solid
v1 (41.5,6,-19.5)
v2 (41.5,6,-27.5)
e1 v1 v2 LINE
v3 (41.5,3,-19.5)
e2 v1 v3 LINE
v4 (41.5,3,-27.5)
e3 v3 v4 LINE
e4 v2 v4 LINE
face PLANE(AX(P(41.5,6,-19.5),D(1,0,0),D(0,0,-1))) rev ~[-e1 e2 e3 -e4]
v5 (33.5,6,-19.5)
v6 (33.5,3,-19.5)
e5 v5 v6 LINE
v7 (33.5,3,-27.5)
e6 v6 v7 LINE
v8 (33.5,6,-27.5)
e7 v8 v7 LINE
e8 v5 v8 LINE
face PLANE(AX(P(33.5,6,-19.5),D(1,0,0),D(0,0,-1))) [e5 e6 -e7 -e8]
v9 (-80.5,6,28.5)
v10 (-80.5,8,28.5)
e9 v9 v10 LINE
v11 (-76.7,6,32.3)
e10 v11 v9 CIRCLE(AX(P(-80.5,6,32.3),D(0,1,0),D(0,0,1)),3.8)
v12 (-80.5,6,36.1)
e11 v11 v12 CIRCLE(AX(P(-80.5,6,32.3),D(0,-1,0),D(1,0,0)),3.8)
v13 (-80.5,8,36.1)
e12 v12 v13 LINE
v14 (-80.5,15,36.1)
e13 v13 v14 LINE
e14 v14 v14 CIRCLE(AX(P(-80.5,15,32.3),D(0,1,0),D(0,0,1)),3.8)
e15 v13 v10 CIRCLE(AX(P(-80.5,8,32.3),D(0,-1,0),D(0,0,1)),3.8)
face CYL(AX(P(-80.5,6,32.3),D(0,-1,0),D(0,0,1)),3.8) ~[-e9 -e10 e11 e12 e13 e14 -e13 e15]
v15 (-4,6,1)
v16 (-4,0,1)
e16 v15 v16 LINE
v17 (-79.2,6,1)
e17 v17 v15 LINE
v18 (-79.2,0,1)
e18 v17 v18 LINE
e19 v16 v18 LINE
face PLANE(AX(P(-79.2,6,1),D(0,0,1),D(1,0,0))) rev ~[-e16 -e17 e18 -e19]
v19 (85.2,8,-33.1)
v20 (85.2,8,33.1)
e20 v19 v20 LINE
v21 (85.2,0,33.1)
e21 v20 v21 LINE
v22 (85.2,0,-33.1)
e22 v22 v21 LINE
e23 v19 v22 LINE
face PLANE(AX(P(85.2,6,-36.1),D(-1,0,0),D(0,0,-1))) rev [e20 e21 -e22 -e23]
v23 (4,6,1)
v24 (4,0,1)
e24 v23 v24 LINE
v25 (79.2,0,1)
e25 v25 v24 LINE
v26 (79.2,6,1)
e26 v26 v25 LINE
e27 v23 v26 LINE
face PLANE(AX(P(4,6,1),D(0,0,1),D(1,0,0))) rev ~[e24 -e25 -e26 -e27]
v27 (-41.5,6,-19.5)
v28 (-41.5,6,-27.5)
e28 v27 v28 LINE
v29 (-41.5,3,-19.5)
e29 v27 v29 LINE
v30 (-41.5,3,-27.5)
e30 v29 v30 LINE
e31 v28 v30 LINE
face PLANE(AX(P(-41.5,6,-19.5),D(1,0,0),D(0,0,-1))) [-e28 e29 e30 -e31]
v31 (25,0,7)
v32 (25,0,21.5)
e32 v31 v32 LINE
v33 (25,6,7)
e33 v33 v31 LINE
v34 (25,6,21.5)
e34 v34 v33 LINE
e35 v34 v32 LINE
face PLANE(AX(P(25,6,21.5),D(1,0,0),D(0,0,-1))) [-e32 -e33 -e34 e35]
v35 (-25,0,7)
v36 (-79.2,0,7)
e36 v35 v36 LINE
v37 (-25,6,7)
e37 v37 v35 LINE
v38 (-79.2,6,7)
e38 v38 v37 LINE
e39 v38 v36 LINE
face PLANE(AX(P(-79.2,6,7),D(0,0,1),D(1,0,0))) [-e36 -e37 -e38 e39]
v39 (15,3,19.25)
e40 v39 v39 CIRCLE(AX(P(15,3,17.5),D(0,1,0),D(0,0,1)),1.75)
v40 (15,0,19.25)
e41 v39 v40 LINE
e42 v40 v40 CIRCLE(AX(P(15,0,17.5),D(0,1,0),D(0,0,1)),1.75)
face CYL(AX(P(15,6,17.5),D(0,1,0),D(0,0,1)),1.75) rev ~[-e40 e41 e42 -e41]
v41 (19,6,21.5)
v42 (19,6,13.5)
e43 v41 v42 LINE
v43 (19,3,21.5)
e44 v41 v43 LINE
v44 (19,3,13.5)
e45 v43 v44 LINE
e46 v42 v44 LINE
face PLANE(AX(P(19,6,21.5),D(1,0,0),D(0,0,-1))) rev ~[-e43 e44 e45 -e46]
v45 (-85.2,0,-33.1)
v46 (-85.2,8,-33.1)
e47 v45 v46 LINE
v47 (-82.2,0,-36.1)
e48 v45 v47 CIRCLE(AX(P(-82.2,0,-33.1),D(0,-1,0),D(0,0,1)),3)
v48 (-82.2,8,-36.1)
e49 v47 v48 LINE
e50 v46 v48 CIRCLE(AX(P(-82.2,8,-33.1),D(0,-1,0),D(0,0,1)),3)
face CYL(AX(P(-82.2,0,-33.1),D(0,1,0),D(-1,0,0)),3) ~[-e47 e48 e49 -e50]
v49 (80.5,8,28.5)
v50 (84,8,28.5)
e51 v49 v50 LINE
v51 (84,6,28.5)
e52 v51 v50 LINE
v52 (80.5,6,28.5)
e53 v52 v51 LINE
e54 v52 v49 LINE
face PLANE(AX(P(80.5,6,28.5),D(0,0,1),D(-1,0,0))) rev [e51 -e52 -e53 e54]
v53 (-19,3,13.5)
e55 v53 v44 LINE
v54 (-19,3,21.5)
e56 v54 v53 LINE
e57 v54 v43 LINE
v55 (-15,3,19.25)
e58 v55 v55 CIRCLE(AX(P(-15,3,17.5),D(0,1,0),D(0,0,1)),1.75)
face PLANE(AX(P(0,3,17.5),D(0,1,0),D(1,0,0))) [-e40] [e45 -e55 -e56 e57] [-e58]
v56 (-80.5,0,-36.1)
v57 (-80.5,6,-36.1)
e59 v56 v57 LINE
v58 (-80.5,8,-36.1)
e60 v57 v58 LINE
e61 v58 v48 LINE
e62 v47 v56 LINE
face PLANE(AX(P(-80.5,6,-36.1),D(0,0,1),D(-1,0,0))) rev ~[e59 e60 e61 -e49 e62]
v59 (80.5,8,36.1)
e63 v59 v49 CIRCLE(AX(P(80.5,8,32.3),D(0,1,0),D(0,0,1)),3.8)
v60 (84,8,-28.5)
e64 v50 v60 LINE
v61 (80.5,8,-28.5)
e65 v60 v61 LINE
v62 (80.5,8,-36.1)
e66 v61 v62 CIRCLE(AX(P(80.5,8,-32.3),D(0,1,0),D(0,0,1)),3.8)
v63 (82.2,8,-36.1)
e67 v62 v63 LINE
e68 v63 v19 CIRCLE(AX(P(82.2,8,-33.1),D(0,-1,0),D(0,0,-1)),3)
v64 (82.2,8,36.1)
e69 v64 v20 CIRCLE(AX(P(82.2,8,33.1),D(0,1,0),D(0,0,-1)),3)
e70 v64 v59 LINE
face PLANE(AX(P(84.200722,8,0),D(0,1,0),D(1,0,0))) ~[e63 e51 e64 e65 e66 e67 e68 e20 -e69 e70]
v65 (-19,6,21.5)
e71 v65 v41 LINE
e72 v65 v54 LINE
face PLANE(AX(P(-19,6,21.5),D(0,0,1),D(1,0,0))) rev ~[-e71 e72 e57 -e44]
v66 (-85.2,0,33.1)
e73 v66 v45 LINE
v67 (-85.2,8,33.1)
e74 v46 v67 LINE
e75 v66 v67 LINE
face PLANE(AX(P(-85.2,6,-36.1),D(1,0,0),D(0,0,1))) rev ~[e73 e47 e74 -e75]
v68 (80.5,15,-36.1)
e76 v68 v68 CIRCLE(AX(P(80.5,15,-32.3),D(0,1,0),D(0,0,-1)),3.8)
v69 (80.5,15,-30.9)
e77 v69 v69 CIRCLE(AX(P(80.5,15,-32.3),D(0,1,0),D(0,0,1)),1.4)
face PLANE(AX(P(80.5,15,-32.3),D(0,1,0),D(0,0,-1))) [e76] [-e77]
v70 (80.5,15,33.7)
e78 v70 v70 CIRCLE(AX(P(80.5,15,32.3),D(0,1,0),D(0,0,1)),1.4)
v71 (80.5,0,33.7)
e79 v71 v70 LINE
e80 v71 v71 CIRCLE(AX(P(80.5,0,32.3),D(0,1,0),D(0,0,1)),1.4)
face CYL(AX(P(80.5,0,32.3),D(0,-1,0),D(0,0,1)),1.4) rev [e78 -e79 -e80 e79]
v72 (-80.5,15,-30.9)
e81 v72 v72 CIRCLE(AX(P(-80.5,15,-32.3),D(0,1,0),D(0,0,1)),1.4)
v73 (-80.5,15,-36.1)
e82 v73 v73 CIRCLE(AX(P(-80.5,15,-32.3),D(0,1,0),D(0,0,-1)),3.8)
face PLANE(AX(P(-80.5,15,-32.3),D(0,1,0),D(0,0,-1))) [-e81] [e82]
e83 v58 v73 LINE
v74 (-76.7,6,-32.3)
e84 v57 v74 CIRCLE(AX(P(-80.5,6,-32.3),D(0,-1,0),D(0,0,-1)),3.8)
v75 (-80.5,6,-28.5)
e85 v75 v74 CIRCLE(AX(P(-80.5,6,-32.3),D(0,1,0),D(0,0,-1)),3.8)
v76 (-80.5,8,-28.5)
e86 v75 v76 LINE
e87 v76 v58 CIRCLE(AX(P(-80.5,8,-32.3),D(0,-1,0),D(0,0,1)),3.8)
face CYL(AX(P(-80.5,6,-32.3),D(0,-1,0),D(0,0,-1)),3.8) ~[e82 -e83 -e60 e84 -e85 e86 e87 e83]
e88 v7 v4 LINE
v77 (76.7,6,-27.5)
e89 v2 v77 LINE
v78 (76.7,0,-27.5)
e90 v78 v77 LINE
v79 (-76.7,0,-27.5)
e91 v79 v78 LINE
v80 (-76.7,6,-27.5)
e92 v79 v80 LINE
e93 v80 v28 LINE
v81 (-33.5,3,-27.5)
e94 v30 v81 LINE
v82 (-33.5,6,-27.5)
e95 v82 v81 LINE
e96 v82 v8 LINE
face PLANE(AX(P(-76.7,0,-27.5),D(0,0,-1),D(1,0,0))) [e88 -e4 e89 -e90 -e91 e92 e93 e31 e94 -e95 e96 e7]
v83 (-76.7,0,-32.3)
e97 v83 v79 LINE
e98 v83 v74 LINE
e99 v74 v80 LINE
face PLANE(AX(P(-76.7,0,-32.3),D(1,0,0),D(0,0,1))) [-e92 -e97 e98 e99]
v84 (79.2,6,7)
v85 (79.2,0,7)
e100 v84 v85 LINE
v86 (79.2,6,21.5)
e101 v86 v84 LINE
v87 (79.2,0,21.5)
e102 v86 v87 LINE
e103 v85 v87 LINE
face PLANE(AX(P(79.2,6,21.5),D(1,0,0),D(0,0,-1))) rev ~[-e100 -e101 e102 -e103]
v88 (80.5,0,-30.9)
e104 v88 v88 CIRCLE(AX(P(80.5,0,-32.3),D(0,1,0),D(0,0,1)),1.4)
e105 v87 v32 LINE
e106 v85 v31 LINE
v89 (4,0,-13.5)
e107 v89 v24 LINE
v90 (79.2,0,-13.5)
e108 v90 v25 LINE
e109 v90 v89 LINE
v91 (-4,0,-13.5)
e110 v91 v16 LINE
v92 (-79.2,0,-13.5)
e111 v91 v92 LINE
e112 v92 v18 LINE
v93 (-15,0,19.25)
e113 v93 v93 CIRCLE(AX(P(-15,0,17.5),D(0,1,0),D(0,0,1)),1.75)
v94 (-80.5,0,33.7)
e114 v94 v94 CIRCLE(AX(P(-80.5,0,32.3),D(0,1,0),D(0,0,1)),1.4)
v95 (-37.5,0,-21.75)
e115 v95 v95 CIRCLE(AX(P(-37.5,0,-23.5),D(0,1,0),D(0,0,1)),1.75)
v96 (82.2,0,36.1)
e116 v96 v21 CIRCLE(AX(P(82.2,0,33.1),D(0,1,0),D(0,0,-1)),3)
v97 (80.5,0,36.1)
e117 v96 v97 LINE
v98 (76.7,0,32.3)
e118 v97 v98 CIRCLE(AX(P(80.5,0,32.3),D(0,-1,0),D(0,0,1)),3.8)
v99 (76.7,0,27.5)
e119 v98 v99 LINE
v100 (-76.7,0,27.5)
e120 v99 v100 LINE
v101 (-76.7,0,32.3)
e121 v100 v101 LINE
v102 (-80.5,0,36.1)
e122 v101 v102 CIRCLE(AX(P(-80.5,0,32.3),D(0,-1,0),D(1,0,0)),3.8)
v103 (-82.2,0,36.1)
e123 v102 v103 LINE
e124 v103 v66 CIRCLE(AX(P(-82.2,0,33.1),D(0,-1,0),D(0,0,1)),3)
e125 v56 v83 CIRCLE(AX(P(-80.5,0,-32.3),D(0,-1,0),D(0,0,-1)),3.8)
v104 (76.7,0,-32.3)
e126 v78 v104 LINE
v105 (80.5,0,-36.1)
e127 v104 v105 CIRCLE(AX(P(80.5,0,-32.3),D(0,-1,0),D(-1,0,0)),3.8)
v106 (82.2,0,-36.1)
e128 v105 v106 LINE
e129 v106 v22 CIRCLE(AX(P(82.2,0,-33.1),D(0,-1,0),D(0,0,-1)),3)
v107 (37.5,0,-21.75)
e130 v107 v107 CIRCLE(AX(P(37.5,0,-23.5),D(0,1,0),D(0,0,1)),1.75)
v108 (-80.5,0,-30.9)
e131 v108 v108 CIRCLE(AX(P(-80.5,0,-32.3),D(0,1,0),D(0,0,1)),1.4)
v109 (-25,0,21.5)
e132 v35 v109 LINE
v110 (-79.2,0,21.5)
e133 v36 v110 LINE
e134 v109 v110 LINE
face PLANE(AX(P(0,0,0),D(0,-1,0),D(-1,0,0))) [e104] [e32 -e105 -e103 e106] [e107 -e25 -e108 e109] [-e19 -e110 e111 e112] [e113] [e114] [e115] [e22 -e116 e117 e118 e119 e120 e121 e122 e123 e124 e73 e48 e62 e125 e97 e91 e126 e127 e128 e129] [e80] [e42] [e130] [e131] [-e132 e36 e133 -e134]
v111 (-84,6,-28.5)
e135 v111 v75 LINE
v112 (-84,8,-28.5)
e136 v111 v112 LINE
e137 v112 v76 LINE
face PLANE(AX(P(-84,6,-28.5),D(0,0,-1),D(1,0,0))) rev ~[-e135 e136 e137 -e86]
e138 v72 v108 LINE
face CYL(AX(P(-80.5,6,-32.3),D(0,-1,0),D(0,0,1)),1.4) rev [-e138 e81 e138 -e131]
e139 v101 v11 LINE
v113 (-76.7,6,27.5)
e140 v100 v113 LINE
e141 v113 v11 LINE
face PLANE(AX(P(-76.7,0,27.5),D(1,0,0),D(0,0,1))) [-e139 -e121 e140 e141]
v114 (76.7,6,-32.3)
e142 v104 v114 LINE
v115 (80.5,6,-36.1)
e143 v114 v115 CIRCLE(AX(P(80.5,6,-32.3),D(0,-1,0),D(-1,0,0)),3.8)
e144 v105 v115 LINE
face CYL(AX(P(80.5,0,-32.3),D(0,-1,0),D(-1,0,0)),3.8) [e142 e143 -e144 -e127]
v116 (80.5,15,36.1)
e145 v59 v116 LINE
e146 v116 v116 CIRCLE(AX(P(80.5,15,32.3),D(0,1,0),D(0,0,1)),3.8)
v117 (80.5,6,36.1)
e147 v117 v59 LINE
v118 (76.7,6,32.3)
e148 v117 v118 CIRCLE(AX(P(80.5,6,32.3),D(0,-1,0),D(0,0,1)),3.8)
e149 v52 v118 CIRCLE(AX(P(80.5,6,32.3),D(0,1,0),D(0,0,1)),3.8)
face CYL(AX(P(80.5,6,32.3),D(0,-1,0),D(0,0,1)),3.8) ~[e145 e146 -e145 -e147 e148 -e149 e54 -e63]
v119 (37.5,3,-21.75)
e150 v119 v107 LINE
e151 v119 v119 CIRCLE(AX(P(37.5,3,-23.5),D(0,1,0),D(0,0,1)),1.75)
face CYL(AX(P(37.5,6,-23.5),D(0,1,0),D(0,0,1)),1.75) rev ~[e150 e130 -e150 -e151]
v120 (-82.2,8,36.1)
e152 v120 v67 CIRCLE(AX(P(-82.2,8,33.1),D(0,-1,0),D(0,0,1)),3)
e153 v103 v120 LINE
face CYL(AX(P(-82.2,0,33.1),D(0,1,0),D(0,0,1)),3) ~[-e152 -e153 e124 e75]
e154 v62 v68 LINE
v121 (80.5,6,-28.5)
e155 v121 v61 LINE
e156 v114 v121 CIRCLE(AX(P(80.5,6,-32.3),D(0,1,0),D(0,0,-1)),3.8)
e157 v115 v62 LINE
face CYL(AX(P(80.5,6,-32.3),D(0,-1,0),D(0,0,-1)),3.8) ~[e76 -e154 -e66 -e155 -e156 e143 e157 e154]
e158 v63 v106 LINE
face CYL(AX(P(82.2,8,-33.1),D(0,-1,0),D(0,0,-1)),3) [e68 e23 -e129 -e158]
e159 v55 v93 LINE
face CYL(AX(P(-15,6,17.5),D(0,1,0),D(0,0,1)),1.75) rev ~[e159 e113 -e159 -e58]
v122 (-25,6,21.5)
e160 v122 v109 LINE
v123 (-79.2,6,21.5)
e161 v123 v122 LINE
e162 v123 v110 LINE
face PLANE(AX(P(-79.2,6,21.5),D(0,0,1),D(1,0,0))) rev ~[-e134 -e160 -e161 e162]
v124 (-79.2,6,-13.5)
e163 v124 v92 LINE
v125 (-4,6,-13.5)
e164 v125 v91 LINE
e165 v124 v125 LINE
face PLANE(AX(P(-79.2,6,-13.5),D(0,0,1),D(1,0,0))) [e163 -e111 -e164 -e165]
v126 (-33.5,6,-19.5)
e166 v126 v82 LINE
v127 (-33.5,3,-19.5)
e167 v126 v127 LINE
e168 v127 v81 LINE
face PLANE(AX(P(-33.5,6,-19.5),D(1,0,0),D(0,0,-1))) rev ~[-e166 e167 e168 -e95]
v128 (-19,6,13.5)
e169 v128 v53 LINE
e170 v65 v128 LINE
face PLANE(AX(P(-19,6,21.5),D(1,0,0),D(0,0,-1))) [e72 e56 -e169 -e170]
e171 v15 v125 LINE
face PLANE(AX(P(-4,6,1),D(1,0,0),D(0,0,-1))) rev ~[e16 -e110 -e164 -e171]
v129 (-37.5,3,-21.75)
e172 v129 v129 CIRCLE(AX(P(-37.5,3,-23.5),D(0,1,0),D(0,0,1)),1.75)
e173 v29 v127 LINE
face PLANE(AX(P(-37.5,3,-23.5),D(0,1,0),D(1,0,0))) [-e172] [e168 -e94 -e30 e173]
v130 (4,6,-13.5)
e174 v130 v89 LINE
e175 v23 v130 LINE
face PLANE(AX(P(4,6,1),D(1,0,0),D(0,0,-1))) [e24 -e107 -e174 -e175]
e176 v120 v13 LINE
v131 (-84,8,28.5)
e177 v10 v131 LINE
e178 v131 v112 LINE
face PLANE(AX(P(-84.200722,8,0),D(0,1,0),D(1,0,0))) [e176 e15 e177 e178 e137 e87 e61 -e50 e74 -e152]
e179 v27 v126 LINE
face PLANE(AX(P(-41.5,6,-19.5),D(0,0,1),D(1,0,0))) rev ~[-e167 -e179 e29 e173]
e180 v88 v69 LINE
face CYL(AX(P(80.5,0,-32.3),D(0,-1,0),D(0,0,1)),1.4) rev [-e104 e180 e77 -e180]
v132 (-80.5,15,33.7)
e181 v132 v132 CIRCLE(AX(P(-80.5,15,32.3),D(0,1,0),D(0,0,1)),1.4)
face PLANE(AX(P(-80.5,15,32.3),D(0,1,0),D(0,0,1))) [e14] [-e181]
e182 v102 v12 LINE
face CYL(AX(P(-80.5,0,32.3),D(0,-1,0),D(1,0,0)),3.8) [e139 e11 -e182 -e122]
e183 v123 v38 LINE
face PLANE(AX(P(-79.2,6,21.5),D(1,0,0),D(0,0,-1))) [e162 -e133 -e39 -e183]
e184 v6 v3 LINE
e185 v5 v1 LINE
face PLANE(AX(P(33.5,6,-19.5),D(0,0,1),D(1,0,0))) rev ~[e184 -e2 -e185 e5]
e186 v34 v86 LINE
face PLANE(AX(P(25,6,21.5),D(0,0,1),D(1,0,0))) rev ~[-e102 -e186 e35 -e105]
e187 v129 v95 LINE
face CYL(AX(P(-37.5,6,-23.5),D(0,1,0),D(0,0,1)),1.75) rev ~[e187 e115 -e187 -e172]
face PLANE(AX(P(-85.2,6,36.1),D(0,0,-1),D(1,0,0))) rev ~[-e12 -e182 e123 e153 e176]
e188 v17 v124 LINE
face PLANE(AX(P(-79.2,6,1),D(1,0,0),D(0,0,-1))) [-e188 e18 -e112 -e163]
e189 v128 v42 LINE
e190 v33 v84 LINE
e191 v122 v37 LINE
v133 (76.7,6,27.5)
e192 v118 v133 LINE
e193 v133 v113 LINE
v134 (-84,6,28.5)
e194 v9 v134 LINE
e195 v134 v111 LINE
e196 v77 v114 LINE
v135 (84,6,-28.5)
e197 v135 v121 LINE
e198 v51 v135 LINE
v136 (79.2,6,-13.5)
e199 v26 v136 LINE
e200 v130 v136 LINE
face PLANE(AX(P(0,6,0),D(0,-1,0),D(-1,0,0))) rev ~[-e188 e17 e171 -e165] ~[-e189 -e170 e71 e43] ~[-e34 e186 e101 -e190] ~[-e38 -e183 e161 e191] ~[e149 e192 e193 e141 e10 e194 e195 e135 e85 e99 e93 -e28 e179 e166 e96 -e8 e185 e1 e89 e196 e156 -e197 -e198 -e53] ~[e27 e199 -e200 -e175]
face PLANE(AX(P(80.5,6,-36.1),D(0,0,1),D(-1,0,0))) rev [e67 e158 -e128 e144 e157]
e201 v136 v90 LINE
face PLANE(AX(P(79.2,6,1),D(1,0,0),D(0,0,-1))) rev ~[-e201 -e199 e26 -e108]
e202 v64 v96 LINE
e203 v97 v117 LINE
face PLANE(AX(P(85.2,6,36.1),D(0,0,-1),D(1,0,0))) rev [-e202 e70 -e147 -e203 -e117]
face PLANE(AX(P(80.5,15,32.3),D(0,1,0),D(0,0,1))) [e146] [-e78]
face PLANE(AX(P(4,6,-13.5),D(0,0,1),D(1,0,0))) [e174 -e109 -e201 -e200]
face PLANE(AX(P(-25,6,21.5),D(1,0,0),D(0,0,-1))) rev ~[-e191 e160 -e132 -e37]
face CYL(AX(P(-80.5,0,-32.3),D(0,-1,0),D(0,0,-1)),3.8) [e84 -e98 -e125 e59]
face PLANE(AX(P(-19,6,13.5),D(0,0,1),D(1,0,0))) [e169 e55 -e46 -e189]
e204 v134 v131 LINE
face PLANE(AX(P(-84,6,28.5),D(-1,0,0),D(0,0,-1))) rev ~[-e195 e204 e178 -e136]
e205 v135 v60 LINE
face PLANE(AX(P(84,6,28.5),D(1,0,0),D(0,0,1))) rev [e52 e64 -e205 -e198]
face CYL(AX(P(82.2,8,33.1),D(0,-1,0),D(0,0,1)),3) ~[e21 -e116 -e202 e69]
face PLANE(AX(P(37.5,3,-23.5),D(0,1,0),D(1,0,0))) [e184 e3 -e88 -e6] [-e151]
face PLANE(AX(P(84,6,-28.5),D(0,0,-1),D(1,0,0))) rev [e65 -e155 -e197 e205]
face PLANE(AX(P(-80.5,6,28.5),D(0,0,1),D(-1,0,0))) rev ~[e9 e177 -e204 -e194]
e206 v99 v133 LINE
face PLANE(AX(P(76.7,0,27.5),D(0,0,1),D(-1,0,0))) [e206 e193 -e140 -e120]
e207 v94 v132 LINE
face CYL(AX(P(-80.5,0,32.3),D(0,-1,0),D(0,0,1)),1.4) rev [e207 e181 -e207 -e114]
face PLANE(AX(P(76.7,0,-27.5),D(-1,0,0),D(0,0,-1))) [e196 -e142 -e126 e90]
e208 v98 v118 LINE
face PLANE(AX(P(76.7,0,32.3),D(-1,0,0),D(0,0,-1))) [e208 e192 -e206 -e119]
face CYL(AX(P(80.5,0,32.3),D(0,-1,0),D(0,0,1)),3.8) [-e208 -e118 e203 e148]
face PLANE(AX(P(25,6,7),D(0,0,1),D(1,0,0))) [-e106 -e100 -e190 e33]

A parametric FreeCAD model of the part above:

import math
import FreeCAD as App
import Part
import Sketcher
from FreeCAD import Vector


def edges_at(feature, points):
    """Names of the edges that pass closest to the given points."""
    edges = feature.Shape.Edges
    near = lambda p: min(range(len(edges)), key=lambda i: edges[i].distToShape(Part.Vertex(*p))[0])
    return sorted({f"Edge{near(p) + 1}" for p in points})

doc = App.newDocument("Part")
body = doc.addObject("PartDesign::Body", "Body")

# Sketch on XZ plane
sketch1 = doc.addObject("Sketcher::SketchObject", "Sketch")
body.addObject(sketch1)
sketch1.AttachmentSupport = (doc.XZ_Plane, [""])
sketch1.MapMode = "FlatFace"
sketch1.addGeometry(Part.LineSegment(Vector(-76.7, 32.3, 0), Vector(-76.7, 27.5, 0)), False)
sketch1.addGeometry(Part.LineSegment(Vector(-76.7, 27.5, 0), Vector(76.7, 27.5, 0)), False)
sketch1.addGeometry(Part.LineSegment(Vector(76.7, 27.5, 0), Vector(76.7, 32.3, 0)), False)
sketch1.addGeometry(Part.ArcOfCircle(Part.Circle(Vector(80.5, 32.3, 0), Vector(0, 0, 1), 3.8), math.radians(90), math.radians(180)), False)
sketch1.addGeometry(Part.LineSegment(Vector(80.5, 36.1, 0), Vector(85.2, 36.1, 0)), False)
sketch1.addGeometry(Part.LineSegment(Vector(85.2, 36.1, 0), Vector(85.2, -36.1, 0)), False)
sketch1.addGeometry(Part.LineSegment(Vector(85.2, -36.1, 0), Vector(80.5, -36.1, 0)), False)
sketch1.addGeometry(Part.ArcOfCircle(Part.Circle(Vector(80.5, -32.3, 0), Vector(0, 0, 1), 3.8), math.radians(180), math.radians(270)), False)
sketch1.addGeometry(Part.LineSegment(Vector(76.7, -32.3, 0), Vector(76.7, -27.5, 0)), False)
sketch1.addGeometry(Part.LineSegment(Vector(76.7, -27.5, 0), Vector(-76.7, -27.5, 0)), False)
sketch1.addGeometry(Part.LineSegment(Vector(-76.7, -27.5, 0), Vector(-76.7, -32.3, 0)), False)
sketch1.addGeometry(Part.ArcOfCircle(Part.Circle(Vector(-80.5, -32.3, 0), Vector(0, 0, 1), 3.8), math.radians(-90), math.radians(0)), False)
sketch1.addGeometry(Part.LineSegment(Vector(-80.5, -36.1, 0), Vector(-85.2, -36.1, 0)), False)
sketch1.addGeometry(Part.LineSegment(Vector(-85.2, -36.1, 0), Vector(-85.2, 36.1, 0)), False)
sketch1.addGeometry(Part.LineSegment(Vector(-85.2, 36.1, 0), Vector(-80.5, 36.1, 0)), False)
sketch1.addGeometry(Part.ArcOfCircle(Part.Circle(Vector(-80.5, 32.3, 0), Vector(0, 0, 1), 3.8), math.radians(0), math.radians(90)), False)
sketch1.addGeometry(Part.Circle(Vector(80.5, 32.3, 0), Vector(0, 0, 1), 1.4), False)
sketch1.addGeometry(Part.Circle(Vector(-80.5, 32.3, 0), Vector(0, 0, 1), 1.4), False)
sketch1.addGeometry(Part.Circle(Vector(80.5, -32.3, 0), Vector(0, 0, 1), 1.4), False)
sketch1.addGeometry(Part.Circle(Vector(-80.5, -32.3, 0), Vector(0, 0, 1), 1.4), False)
sketch1.addConstraint(Sketcher.Constraint("Coincident", 0, 2, 1, 1))
sketch1.addConstraint(Sketcher.Constraint("Coincident", 1, 2, 2, 1))
sketch1.addConstraint(Sketcher.Constraint("Tangent", 2, 2, 3, 2))
sketch1.addConstraint(Sketcher.Constraint("Tangent", 3, 1, 4, 1))
sketch1.addConstraint(Sketcher.Constraint("Coincident", 4, 2, 5, 1))
sketch1.addConstraint(Sketcher.Constraint("Coincident", 5, 2, 6, 1))
sketch1.addConstraint(Sketcher.Constraint("Tangent", 6, 2, 7, 2))
sketch1.addConstraint(Sketcher.Constraint("Tangent", 7, 1, 8, 1))
sketch1.addConstraint(Sketcher.Constraint("Coincident", 8, 2, 9, 1))
sketch1.addConstraint(Sketcher.Constraint("Coincident", 9, 2, 10, 1))
sketch1.addConstraint(Sketcher.Constraint("Tangent", 10, 2, 11, 2))
sketch1.addConstraint(Sketcher.Constraint("Tangent", 11, 1, 12, 1))
sketch1.addConstraint(Sketcher.Constraint("Coincident", 12, 2, 13, 1))
sketch1.addConstraint(Sketcher.Constraint("Coincident", 13, 2, 14, 1))
sketch1.addConstraint(Sketcher.Constraint("Tangent", 14, 2, 15, 2))
sketch1.addConstraint(Sketcher.Constraint("Tangent", 15, 1, 0, 1))
sketch1.addConstraint(Sketcher.Constraint("Vertical", 0))
sketch1.addConstraint(Sketcher.Constraint("Horizontal", 1))
sketch1.addConstraint(Sketcher.Constraint("Vertical", 2))
sketch1.addConstraint(Sketcher.Constraint("Horizontal", 4))
sketch1.addConstraint(Sketcher.Constraint("Vertical", 5))
sketch1.addConstraint(Sketcher.Constraint("Horizontal", 6))
sketch1.addConstraint(Sketcher.Constraint("Vertical", 8))
sketch1.addConstraint(Sketcher.Constraint("Horizontal", 9))
sketch1.addConstraint(Sketcher.Constraint("Vertical", 10))
sketch1.addConstraint(Sketcher.Constraint("Horizontal", 12))
sketch1.addConstraint(Sketcher.Constraint("Vertical", 13))
sketch1.addConstraint(Sketcher.Constraint("Horizontal", 14))
sketch1.addConstraint(Sketcher.Constraint("Coincident", 16, 3, 3, 3))
sketch1.addConstraint(Sketcher.Constraint("Coincident", 17, 3, 15, 3))
sketch1.addConstraint(Sketcher.Constraint("Coincident", 18, 3, 7, 3))
sketch1.addConstraint(Sketcher.Constraint("Coincident", 19, 3, 11, 3))
sketch1.addConstraint(Sketcher.Constraint("Equal", 3, 7))
sketch1.addConstraint(Sketcher.Constraint("Equal", 7, 11))
sketch1.addConstraint(Sketcher.Constraint("Equal", 11, 15))
sketch1.addConstraint(Sketcher.Constraint("Equal", 16, 17))
sketch1.addConstraint(Sketcher.Constraint("Equal", 17, 18))
sketch1.addConstraint(Sketcher.Constraint("Equal", 18, 19))
sketch1.addConstraint(Sketcher.Constraint("Symmetric", 3, 3, 11, 3, -1, 1))
sketch1.addConstraint(Sketcher.Constraint("Symmetric", 7, 3, 15, 3, -1, 1))
sketch1.addConstraint(Sketcher.Constraint("Symmetric", 7, 3, 11, 3, -2))
sketch1.addConstraint(Sketcher.Constraint("Equal", 6, 12))
sketch1.addConstraint(Sketcher.Constraint("Equal", 2, 8))
sketch1.addConstraint(Sketcher.Constraint("Diameter", 16, 2.8))
sketch1.addConstraint(Sketcher.Constraint("Radius", 3, 3.8))
sketch1.addConstraint(Sketcher.Constraint("DistanceX", 1, 1, 1, 2, 153.4))
sketch1.addConstraint(Sketcher.Constraint("DistanceX", 4, 1, 4, 2, 4.7))
sketch1.addConstraint(Sketcher.Constraint("DistanceY", 0, 2, 0, 1, 4.8))
sketch1.addConstraint(Sketcher.Constraint("DistanceY", 5, 2, 5, 1, 72.2))
pad1 = doc.addObject("PartDesign::Pad", "Pad")
body.addObject(pad1)
pad1.Profile = sketch1
pad1.Length = 6
pad1.Reversed = True

# Sketch on XZ plane
sketch2 = doc.addObject("Sketcher::SketchObject", "Sketch001")
body.addObject(sketch2)
sketch2.AttachmentSupport = (doc.XZ_Plane, [""])
sketch2.MapMode = "FlatFace"
sketch2.AttachmentOffset = App.Placement(Vector(0, 0, -6), App.Rotation())
sketch2.addGeometry(Part.Circle(Vector(-80.5, -32.3, 0), Vector(0, 0, 1), 3.8), False)
sketch2.addGeometry(Part.Circle(Vector(-80.5, -32.3, 0), Vector(0, 0, 1), 1.4), False)
sketch2.addGeometry(Part.Circle(Vector(-80.5, 32.3, 0), Vector(0, 0, 1), 3.8), False)
sketch2.addGeometry(Part.Circle(Vector(-80.5, 32.3, 0), Vector(0, 0, 1), 1.4), False)
sketch2.addGeometry(Part.Circle(Vector(80.5, 32.3, 0), Vector(0, 0, 1), 3.8), False)
sketch2.addGeometry(Part.Circle(Vector(80.5, 32.3, 0), Vector(0, 0, 1), 1.4), False)
sketch2.addGeometry(Part.Circle(Vector(80.5, -32.3, 0), Vector(0, 0, 1), 3.8), False)
sketch2.addGeometry(Part.Circle(Vector(80.5, -32.3, 0), Vector(0, 0, 1), 1.4), False)
sketch2.addConstraint(Sketcher.Constraint("Coincident", 1, 3, 0, 3))
sketch2.addConstraint(Sketcher.Constraint("Coincident", 3, 3, 2, 3))
sketch2.addConstraint(Sketcher.Constraint("Coincident", 5, 3, 4, 3))
sketch2.addConstraint(Sketcher.Constraint("Coincident", 7, 3, 6, 3))
sketch2.addConstraint(Sketcher.Constraint("Equal", 0, 2))
sketch2.addConstraint(Sketcher.Constraint("Equal", 1, 3))
sketch2.addConstraint(Sketcher.Constraint("Equal", 2, 4))
sketch2.addConstraint(Sketcher.Constraint("Equal", 3, 5))
sketch2.addConstraint(Sketcher.Constraint("Equal", 4, 6))
sketch2.addConstraint(Sketcher.Constraint("Equal", 5, 7))
sketch2.addConstraint(Sketcher.Constraint("Symmetric", 0, 3, 4, 3, -1, 1))
sketch2.addConstraint(Sketcher.Constraint("Symmetric", 2, 3, 6, 3, -1, 1))
sketch2.addConstraint(Sketcher.Constraint("Symmetric", 2, 3, 4, 3, -2))
sketch2.addConstraint(Sketcher.Constraint("Diameter", 0, 7.6))
sketch2.addConstraint(Sketcher.Constraint("Diameter", 1, 2.8))
sketch2.addConstraint(Sketcher.Constraint("DistanceX", 2, 3, 4, 3, 161.0))
sketch2.addConstraint(Sketcher.Constraint("DistanceY", 0, 3, -1, 1, 32.3))
pad2 = doc.addObject("PartDesign::Pad", "Pad001")
body.addObject(pad2)
pad2.Profile = sketch2
pad2.Length = 9
pad2.Reversed = True

# Sketch on XZ plane
sketch3 = doc.addObject("Sketcher::SketchObject", "Sketch002")
body.addObject(sketch3)
sketch3.AttachmentSupport = (doc.XZ_Plane, [""])
sketch3.MapMode = "FlatFace"
sketch3.AttachmentOffset = App.Placement(Vector(0, 0, -6), App.Rotation())
sketch3.addGeometry(Part.Circle(Vector(-37.5, -23.5, 0), Vector(0, 0, 1), 1.8), False)
sketch3.addGeometry(Part.Circle(Vector(-15, 17.5, 0), Vector(0, 0, 1), 1.8), False)
sketch3.addGeometry(Part.Circle(Vector(15, 17.5, 0), Vector(0, 0, 1), 1.8), False)
sketch3.addGeometry(Part.Circle(Vector(37.5, -23.5, 0), Vector(0, 0, 1), 1.8), False)
sketch3.addConstraint(Sketcher.Constraint("Equal", 0, 1))
sketch3.addConstraint(Sketcher.Constraint("Equal", 1, 2))
sketch3.addConstraint(Sketcher.Constraint("Equal", 2, 3))
sketch3.addConstraint(Sketcher.Constraint("Symmetric", 1, 3, 2, 3, -2))
sketch3.addConstraint(Sketcher.Constraint("Symmetric", 0, 3, 3, 3, -2))
sketch3.addConstraint(Sketcher.Constraint("Diameter", 0, 3.5))
sketch3.addConstraint(Sketcher.Constraint("DistanceX", 1, 3, -1, 1, 15.0))
sketch3.addConstraint(Sketcher.Constraint("DistanceY", 0, 3, 1, 3, 41.0))
sketch3.addConstraint(Sketcher.Constraint("DistanceX", 0, 3, 3, 3, 75.0))
sketch3.addConstraint(Sketcher.Constraint("DistanceY", 0, 3, -1, 1, 23.5))
pocket1 = doc.addObject("PartDesign::Pocket", "Pocket")
body.addObject(pocket1)
pocket1.Profile = sketch3
pocket1.Type = "ThroughAll"
pocket1.Reversed = True

# Sketch on XZ plane
sketch4 = doc.addObject("Sketcher::SketchObject", "Sketch003")
body.addObject(sketch4)
sketch4.AttachmentSupport = (doc.XZ_Plane, [""])
sketch4.MapMode = "FlatFace"
sketch4.AttachmentOffset = App.Placement(Vector(0, 0, -6), App.Rotation())
sketch4.addGeometry(Part.LineSegment(Vector(34, -28, 0), Vector(34, -20, 0)), False)
sketch4.addGeometry(Part.LineSegment(Vector(34, -20, 0), Vector(42, -20, 0)), False)
sketch4.addGeometry(Part.LineSegment(Vector(42, -20, 0), Vector(42, -28, 0)), False)
sketch4.addGeometry(Part.LineSegment(Vector(42, -28, 0), Vector(34, -28, 0)), False)
sketch4.addGeometry(Part.LineSegment(Vector(-42, -28, 0), Vector(-42, -20, 0)), False)
sketch4.addGeometry(Part.LineSegment(Vector(-42, -20, 0), Vector(-34, -20, 0)), False)
sketch4.addGeometry(Part.LineSegment(Vector(-34, -20, 0), Vector(-34, -28, 0)), False)
sketch4.addGeometry(Part.LineSegment(Vector(-34, -28, 0), Vector(-42, -28, 0)), False)
sketch4.addGeometry(Part.LineSegment(Vector(-19, 14, 0), Vector(-19, 22, 0)), False)
sketch4.addGeometry(Part.LineSegment(Vector(-19, 22, 0), Vector(19, 22, 0)), False)
sketch4.addGeometry(Part.LineSegment(Vector(19, 22, 0), Vector(19, 14, 0)), False)
sketch4.addGeometry(Part.LineSegment(Vector(19, 14, 0), Vector(-19, 14, 0)), False)
sketch4.addConstraint(Sketcher.Constraint("Coincident", 0, 2, 1, 1))
sketch4.addConstraint(Sketcher.Constraint("Coincident", 1, 2, 2, 1))
sketch4.addConstraint(Sketcher.Constraint("Coincident", 2, 2, 3, 1))
sketch4.addConstraint(Sketcher.Constraint("Coincident", 3, 2, 0, 1))
sketch4.addConstraint(Sketcher.Constraint("Coincident", 4, 2, 5, 1))
sketch4.addConstraint(Sketcher.Constraint("Coincident", 5, 2, 6, 1))
sketch4.addConstraint(Sketcher.Constraint("Coincident", 6, 2, 7, 1))
sketch4.addConstraint(Sketcher.Constraint("Coincident", 7, 2, 4, 1))
sketch4.addConstraint(Sketcher.Constraint("Coincident", 8, 2, 9, 1))
sketch4.addConstraint(Sketcher.Constraint("Coincident", 9, 2, 10, 1))
sketch4.addConstraint(Sketcher.Constraint("Coincident", 10, 2, 11, 1))
sketch4.addConstraint(Sketcher.Constraint("Coincident", 11, 2, 8, 1))
sketch4.addConstraint(Sketcher.Constraint("Vertical", 0))
sketch4.addConstraint(Sketcher.Constraint("Horizontal", 1))
sketch4.addConstraint(Sketcher.Constraint("Vertical", 2))
sketch4.addConstraint(Sketcher.Constraint("Horizontal", 3))
sketch4.addConstraint(Sketcher.Constraint("Vertical", 4))
sketch4.addConstraint(Sketcher.Constraint("Horizontal", 5))
sketch4.addConstraint(Sketcher.Constraint("Vertical", 6))
sketch4.addConstraint(Sketcher.Constraint("Horizontal", 7))
sketch4.addConstraint(Sketcher.Constraint("Vertical", 8))
sketch4.addConstraint(Sketcher.Constraint("Horizontal", 9))
sketch4.addConstraint(Sketcher.Constraint("Vertical", 10))
sketch4.addConstraint(Sketcher.Constraint("Horizontal", 11))
sketch4.addConstraint(Sketcher.Constraint("Symmetric", 1, 2, 4, 2, -2))
sketch4.addConstraint(Sketcher.Constraint("Symmetric", 3, 2, 6, 2, -2))
sketch4.addConstraint(Sketcher.Constraint("Equal", 7, 0))
sketch4.addConstraint(Sketcher.Constraint("Equal", 6, 8))
sketch4.addConstraint(Sketcher.Constraint("DistanceX", 1, 1, 1, 2, 8.0))
sketch4.addConstraint(Sketcher.Constraint("DistanceX", 9, 1, 9, 2, 38.0))
sketch4.addConstraint(Sketcher.Constraint("DistanceX", 8, 2, -1, 1, 19.0))
sketch4.addConstraint(Sketcher.Constraint("DistanceX", 4, 2, 0, 2, 75.0))
sketch4.addConstraint(Sketcher.Constraint("DistanceY", 5, 2, 8, 2, 41.0))
sketch4.addConstraint(Sketcher.Constraint("DistanceY", 0, 2, -1, 1, 19.5))
pocket2 = doc.addObject("PartDesign::Pocket", "Pocket001")
body.addObject(pocket2)
pocket2.Profile = sketch4
pocket2.Length = 3
pocket2.Reversed = True

# Sketch on XZ plane
sketch5 = doc.addObject("Sketcher::SketchObject", "Sketch004")
body.addObject(sketch5)
sketch5.AttachmentSupport = (doc.XZ_Plane, [""])
sketch5.MapMode = "FlatFace"
sketch5.AttachmentOffset = App.Placement(Vector(0, 0, -6), App.Rotation())
sketch5.addGeometry(Part.LineSegment(Vector(-79, -14, 0), Vector(-79, 1, 0)), False)
sketch5.addGeometry(Part.LineSegment(Vector(-79, 1, 0), Vector(-4, 1, 0)), False)
sketch5.addGeometry(Part.LineSegment(Vector(-4, 1, 0), Vector(-4, -14, 0)), False)
sketch5.addGeometry(Part.LineSegment(Vector(-4, -14, 0), Vector(-79, -14, 0)), False)
sketch5.addGeometry(Part.LineSegment(Vector(4, -14, 0), Vector(4, 1, 0)), False)
sketch5.addGeometry(Part.LineSegment(Vector(4, 1, 0), Vector(79, 1, 0)), False)
sketch5.addGeometry(Part.LineSegment(Vector(79, 1, 0), Vector(79, -14, 0)), False)
sketch5.addGeometry(Part.LineSegment(Vector(79, -14, 0), Vector(4, -14, 0)), False)
sketch5.addGeometry(Part.LineSegment(Vector(-79, 7, 0), Vector(-79, 22, 0)), False)
sketch5.addGeometry(Part.LineSegment(Vector(-79, 22, 0), Vector(-25, 22, 0)), False)
sketch5.addGeometry(Part.LineSegment(Vector(-25, 22, 0), Vector(-25, 7, 0)), False)
sketch5.addGeometry(Part.LineSegment(Vector(-25, 7, 0), Vector(-79, 7, 0)), False)
sketch5.addGeometry(Part.LineSegment(Vector(25, 7, 0), Vector(25, 22, 0)), False)
sketch5.addGeometry(Part.LineSegment(Vector(25, 22, 0), Vector(79, 22, 0)), False)
sketch5.addGeometry(Part.LineSegment(Vector(79, 22, 0), Vector(79, 7, 0)), False)
sketch5.addGeometry(Part.LineSegment(Vector(79, 7, 0), Vector(25, 7, 0)), False)
sketch5.addConstraint(Sketcher.Constraint("Coincident", 0, 2, 1, 1))
sketch5.addConstraint(Sketcher.Constraint("Coincident", 1, 2, 2, 1))
sketch5.addConstraint(Sketcher.Constraint("Coincident", 2, 2, 3, 1))
sketch5.addConstraint(Sketcher.Constraint("Coincident", 3, 2, 0, 1))
sketch5.addConstraint(Sketcher.Constraint("Coincident", 4, 2, 5, 1))
sketch5.addConstraint(Sketcher.Constraint("Coincident", 5, 2, 6, 1))
sketch5.addConstraint(Sketcher.Constraint("Coincident", 6, 2, 7, 1))
sketch5.addConstraint(Sketcher.Constraint("Coincident", 7, 2, 4, 1))
sketch5.addConstraint(Sketcher.Constraint("Coincident", 8, 2, 9, 1))
sketch5.addConstraint(Sketcher.Constraint("Coincident", 9, 2, 10, 1))
sketch5.addConstraint(Sketcher.Constraint("Coincident", 10, 2, 11, 1))
sketch5.addConstraint(Sketcher.Constraint("Coincident", 11, 2, 8, 1))
sketch5.addConstraint(Sketcher.Constraint("Coincident", 12, 2, 13, 1))
sketch5.addConstraint(Sketcher.Constraint("Coincident", 13, 2, 14, 1))
sketch5.addConstraint(Sketcher.Constraint("Coincident", 14, 2, 15, 1))
sketch5.addConstraint(Sketcher.Constraint("Coincident", 15, 2, 12, 1))
sketch5.addConstraint(Sketcher.Constraint("Vertical", 0))
sketch5.addConstraint(Sketcher.Constraint("Horizontal", 1))
sketch5.addConstraint(Sketcher.Constraint("Vertical", 2))
sketch5.addConstraint(Sketcher.Constraint("Horizontal", 3))
sketch5.addConstraint(Sketcher.Constraint("Vertical", 4))
sketch5.addConstraint(Sketcher.Constraint("Horizontal", 5))
sketch5.addConstraint(Sketcher.Constraint("Vertical", 6))
sketch5.addConstraint(Sketcher.Constraint("Horizontal", 7))
sketch5.addConstraint(Sketcher.Constraint("Vertical", 8))
sketch5.addConstraint(Sketcher.Constraint("Horizontal", 9))
sketch5.addConstraint(Sketcher.Constraint("Vertical", 10))
sketch5.addConstraint(Sketcher.Constraint("Horizontal", 11))
sketch5.addConstraint(Sketcher.Constraint("Vertical", 12))
sketch5.addConstraint(Sketcher.Constraint("Horizontal", 13))
sketch5.addConstraint(Sketcher.Constraint("Vertical", 14))
sketch5.addConstraint(Sketcher.Constraint("Horizontal", 15))
sketch5.addConstraint(Sketcher.Constraint("Symmetric", 1, 2, 4, 2, -2))
sketch5.addConstraint(Sketcher.Constraint("Symmetric", 3, 2, 6, 2, -2))
sketch5.addConstraint(Sketcher.Constraint("Symmetric", 9, 2, 12, 2, -2))
sketch5.addConstraint(Sketcher.Constraint("Symmetric", 11, 2, 14, 2, -2))
sketch5.addConstraint(Sketcher.Constraint("Vertical", 3, 2, 8, 2))
sketch5.addConstraint(Sketcher.Constraint("Equal", 6, 8))
sketch5.addConstraint(Sketcher.Constraint("DistanceX", 1, 1, 1, 2, 75.2))
sketch5.addConstraint(Sketcher.Constraint("DistanceX", 9, 1, 9, 2, 54.2))
sketch5.addConstraint(Sketcher.Constraint("DistanceY", 0, 1, 0, 2, 14.5))
sketch5.addConstraint(Sketcher.Constraint("DistanceY", -1, 1, 0, 2, 1.0))
sketch5.addConstraint(Sketcher.Constraint("DistanceX", 1, 2, -1, 1, 4.0))
sketch5.addConstraint(Sketcher.Constraint("DistanceY", -1, 1, 10, 2, 7.0))
pocket3 = doc.addObject("PartDesign::Pocket", "Pocket002")
body.addObject(pocket3)
pocket3.Profile = sketch5
pocket3.Type = "ThroughAll"
pocket3.Reversed = True

# Sketch on XZ plane
sketch6 = doc.addObject("Sketcher::SketchObject", "Sketch005")
body.addObject(sketch6)
sketch6.AttachmentSupport = (doc.XZ_Plane, [""])
sketch6.MapMode = "FlatFace"
sketch6.AttachmentOffset = App.Placement(Vector(0, 0, -6), App.Rotation())
sketch6.addGeometry(Part.LineSegment(Vector(-80.5, -36.1, 0), Vector(-85.2, -36.1, 0)), False)
sketch6.addGeometry(Part.LineSegment(Vector(-85.2, -36.1, 0), Vector(-85.2, 36.1, 0)), False)
sketch6.addGeometry(Part.LineSegment(Vector(-85.2, 36.1, 0), Vector(-80.5, 36.1, 0)), False)
sketch6.addGeometry(Part.ArcOfCircle(Part.Circle(Vector(-80.5, 32.3, 0), Vector(0, 0, 1), 3.8), math.radians(90), math.radians(270)), False)
sketch6.addGeometry(Part.LineSegment(Vector(-80.5, 28.5, 0), Vector(-84, 28.5, 0)), False)
sketch6.addGeometry(Part.LineSegment(Vector(-84, 28.5, 0), Vector(-84, -28.5, 0)), False)
sketch6.addGeometry(Part.LineSegment(Vector(-84, -28.5, 0), Vector(-80.5, -28.5, 0)), False)
sketch6.addGeometry(Part.ArcOfCircle(Part.Circle(Vector(-80.5, -32.3, 0), Vector(0, 0, 1), 3.8), math.radians(90), math.radians(270)), False)
sketch6.addConstraint(Sketcher.Constraint("Coincident", 0, 2, 1, 1))
sketch6.addConstraint(Sketcher.Constraint("Coincident", 1, 2, 2, 1))
sketch6.addConstraint(Sketcher.Constraint("Tangent", 2, 2, 3, 1))
sketch6.addConstraint(Sketcher.Constraint("Tangent", 3, 2, 4, 1))
sketch6.addConstraint(Sketcher.Constraint("Coincident", 4, 2, 5, 1))
sketch6.addConstraint(Sketcher.Constraint("Coincident", 5, 2, 6, 1))
sketch6.addConstraint(Sketcher.Constraint("Tangent", 6, 2, 7, 1))
sketch6.addConstraint(Sketcher.Constraint("Tangent", 7, 2, 0, 1))
sketch6.addConstraint(Sketcher.Constraint("Horizontal", 0))
sketch6.addConstraint(Sketcher.Constraint("Vertical", 1))
sketch6.addConstraint(Sketcher.Constraint("Horizontal", 2))
sketch6.addConstraint(Sketcher.Constraint("Horizontal", 4))
sketch6.addConstraint(Sketcher.Constraint("Vertical", 5))
sketch6.addConstraint(Sketcher.Constraint("Horizontal", 6))
sketch6.addConstraint(Sketcher.Constraint("Equal", 3, 7))
sketch6.addConstraint(Sketcher.Constraint("Symmetric", 3, 3, 7, 3, -1))
sketch6.addConstraint(Sketcher.Constraint("Radius", 3, 3.8))
sketch6.addConstraint(Sketcher.Constraint("DistanceY", 5, 2, 5, 1, 57.0))
sketch6.addConstraint(Sketcher.Constraint("DistanceX", 0, 2, 0, 1, 4.7))
sketch6.addConstraint(Sketcher.Constraint("DistanceX", 4, 2, 4, 1, 3.5))
sketch6.addConstraint(Sketcher.Constraint("DistanceX", 4, 2, -1, 1, 84.0))
pad3 = doc.addObject("PartDesign::Pad", "Pad002")
body.addObject(pad3)
pad3.Profile = sketch6
pad3.Length = 2
pad3.Reversed = True
doc.recompute()

mirrored = doc.addObject("PartDesign::Mirrored", "Mirrored")
body.addObject(mirrored)
mirrored.Originals = [pad3]
mirrored.MirrorPlane = (doc.YZ_Plane, [""])
body.Tip = mirrored
doc.recompute()

fillet = doc.addObject("PartDesign::Fillet", "Fillet")
body.addObject(fillet)
fillet.Base = (mirrored, edges_at(mirrored, [
    (85.2, 4, -36.1),
    (85.2, 4, 36.1),
    (-85.2, 4, 36.1),
    (-85.2, 4, -36.1),
]))
fillet.Radius = 3

doc.recompute()
